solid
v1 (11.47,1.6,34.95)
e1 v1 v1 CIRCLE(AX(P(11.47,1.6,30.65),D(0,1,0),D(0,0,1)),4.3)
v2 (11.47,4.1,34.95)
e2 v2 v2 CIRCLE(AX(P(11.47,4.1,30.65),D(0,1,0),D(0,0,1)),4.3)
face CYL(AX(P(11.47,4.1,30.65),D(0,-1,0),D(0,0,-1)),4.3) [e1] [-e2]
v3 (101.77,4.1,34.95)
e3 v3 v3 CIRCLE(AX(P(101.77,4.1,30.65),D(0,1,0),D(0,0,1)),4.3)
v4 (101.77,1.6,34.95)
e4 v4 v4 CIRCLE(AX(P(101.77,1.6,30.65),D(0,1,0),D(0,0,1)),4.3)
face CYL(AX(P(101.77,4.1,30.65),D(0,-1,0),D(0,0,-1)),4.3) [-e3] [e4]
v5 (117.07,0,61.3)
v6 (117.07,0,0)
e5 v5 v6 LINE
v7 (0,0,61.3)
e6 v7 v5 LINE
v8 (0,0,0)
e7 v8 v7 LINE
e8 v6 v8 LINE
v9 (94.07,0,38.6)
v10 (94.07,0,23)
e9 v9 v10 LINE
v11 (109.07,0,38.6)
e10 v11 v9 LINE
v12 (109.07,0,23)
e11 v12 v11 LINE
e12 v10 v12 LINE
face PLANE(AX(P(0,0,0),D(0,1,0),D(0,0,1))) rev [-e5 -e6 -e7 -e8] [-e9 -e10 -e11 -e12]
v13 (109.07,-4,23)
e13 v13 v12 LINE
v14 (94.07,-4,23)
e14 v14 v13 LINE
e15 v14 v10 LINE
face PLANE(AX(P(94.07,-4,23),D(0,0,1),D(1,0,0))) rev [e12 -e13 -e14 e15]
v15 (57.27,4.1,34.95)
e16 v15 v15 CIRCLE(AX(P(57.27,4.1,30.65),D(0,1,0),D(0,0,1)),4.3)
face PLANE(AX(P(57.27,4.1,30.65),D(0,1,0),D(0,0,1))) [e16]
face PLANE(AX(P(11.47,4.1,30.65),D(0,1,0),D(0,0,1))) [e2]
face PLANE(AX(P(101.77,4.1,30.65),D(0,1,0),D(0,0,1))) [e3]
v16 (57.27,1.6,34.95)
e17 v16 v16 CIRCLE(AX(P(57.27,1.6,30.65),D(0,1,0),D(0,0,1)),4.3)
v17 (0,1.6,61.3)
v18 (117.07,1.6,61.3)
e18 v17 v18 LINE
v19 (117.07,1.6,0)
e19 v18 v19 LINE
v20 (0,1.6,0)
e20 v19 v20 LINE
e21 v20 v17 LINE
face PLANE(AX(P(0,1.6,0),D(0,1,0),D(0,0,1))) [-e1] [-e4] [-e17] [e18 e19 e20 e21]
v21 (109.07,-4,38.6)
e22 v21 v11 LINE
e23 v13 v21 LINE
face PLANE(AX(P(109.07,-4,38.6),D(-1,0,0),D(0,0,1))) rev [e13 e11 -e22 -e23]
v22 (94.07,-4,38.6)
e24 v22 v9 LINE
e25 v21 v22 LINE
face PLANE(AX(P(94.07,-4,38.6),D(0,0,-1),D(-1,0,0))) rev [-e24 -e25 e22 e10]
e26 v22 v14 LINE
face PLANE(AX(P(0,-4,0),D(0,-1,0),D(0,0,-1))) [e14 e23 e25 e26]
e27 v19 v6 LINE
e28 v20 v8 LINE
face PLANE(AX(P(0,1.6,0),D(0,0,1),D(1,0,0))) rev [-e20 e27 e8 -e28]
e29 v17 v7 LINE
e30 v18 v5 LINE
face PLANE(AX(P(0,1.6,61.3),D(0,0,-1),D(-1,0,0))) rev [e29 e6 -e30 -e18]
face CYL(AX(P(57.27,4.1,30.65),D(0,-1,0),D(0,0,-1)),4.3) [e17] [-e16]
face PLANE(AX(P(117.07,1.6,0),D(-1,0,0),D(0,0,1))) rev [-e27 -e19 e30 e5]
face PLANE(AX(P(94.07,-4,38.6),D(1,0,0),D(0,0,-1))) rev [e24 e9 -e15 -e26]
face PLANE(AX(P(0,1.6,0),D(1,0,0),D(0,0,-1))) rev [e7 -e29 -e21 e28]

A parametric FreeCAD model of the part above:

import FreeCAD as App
import Part
import Sketcher
from FreeCAD import Vector

doc = App.newDocument("Part")
body = doc.addObject("PartDesign::Body", "Body")

# Sketch on XZ plane
sketch1 = body.newObject("Sketcher::SketchObject", "Sketch")
sketch1.AttachmentSupport = (doc.getObject("XZ_Plane"), [""])
sketch1.MapMode = "FlatFace"
sketch1.addGeometry(Part.LineSegment(Vector(0, 0, 0), Vector(0, 61, 0)), False)
sketch1.addGeometry(Part.LineSegment(Vector(0, 61, 0), Vector(117, 61, 0)), False)
sketch1.addGeometry(Part.LineSegment(Vector(117, 61, 0), Vector(117, 0, 0)), False)
sketch1.addGeometry(Part.LineSegment(Vector(117, 0, 0), Vector(0, 0, 0)), False)
sketch1.addConstraint(Sketcher.Constraint("Coincident", 0, 2, 1, 1))
sketch1.addConstraint(Sketcher.Constraint("Coincident", 1, 2, 2, 1))
sketch1.addConstraint(Sketcher.Constraint("Coincident", 2, 2, 3, 1))
sketch1.addConstraint(Sketcher.Constraint("Coincident", 3, 2, 0, 1))
sketch1.addConstraint(Sketcher.Constraint("Vertical", 0))
sketch1.addConstraint(Sketcher.Constraint("Horizontal", 1))
sketch1.addConstraint(Sketcher.Constraint("Vertical", 2))
sketch1.addConstraint(Sketcher.Constraint("Horizontal", 3))
sketch1.addConstraint(Sketcher.Constraint("Coincident", 3, 2, -1, 1))
sketch1.addConstraint(Sketcher.Constraint("DistanceY", 0, 1, 0, 2, 61.3))
sketch1.addConstraint(Sketcher.Constraint("DistanceX", 1, 1, 1, 2, 117.07))
pad1 = body.newObject("PartDesign::Pad", "Pad")
pad1.Profile = sketch1
pad1.Length = 1.6
pad1.Reversed = True

# Sketch on XZ plane
sketch2 = body.newObject("Sketcher::SketchObject", "Sketch001")
sketch2.AttachmentSupport = (doc.getObject("XZ_Plane"), [""])
sketch2.MapMode = "FlatFace"
sketch2.addGeometry(Part.LineSegment(Vector(94, 39, 0), Vector(94, 23, 0)), False)
sketch2.addGeometry(Part.LineSegment(Vector(94, 23, 0), Vector(109, 23, 0)), False)
sketch2.addGeometry(Part.LineSegment(Vector(109, 23, 0), Vector(109, 39, 0)), False)
sketch2.addGeometry(Part.LineSegment(Vector(109, 39, 0), Vector(94, 39, 0)), False)
sketch2.addConstraint(Sketcher.Constraint("Coincident", 0, 2, 1, 1))
sketch2.addConstraint(Sketcher.Constraint("Coincident", 1, 2, 2, 1))
sketch2.addConstraint(Sketcher.Constraint("Coincident", 2, 2, 3, 1))
sketch2.addConstraint(Sketcher.Constraint("Coincident", 3, 2, 0, 1))
sketch2.addConstraint(Sketcher.Constraint("Vertical", 0))
sketch2.addConstraint(Sketcher.Constraint("Horizontal", 1))
sketch2.addConstraint(Sketcher.Constraint("Vertical", 2))
sketch2.addConstraint(Sketcher.Constraint("Horizontal", 3))
sketch2.addConstraint(Sketcher.Constraint("DistanceX", 1, 1, 1, 2, 15.0))
sketch2.addConstraint(Sketcher.Constraint("DistanceY", 0, 2, 0, 1, 15.6))
sketch2.addConstraint(Sketcher.Constraint("DistanceY", -1, 1, 0, 2, 23.0))
sketch2.addConstraint(Sketcher.Constraint("DistanceX", -1, 1, 0, 2, 94.07))
pad2 = body.newObject("PartDesign::Pad", "Pad001")
pad2.Profile = sketch2
pad2.Length = 4

# Sketch on XZ plane
sketch3 = body.newObject("Sketcher::SketchObject", "Sketch002")
sketch3.AttachmentSupport = (doc.getObject("XZ_Plane"), [""])
sketch3.MapMode = "FlatFace"
sketch3.AttachmentOffset = App.Placement(Vector(0, 0, -1.6), App.Rotation())
sketch3.addGeometry(Part.Circle(Vector(101.8, 30.6, 0), Vector(0, 0, 1), 4.3), False)
sketch3.addGeometry(Part.Circle(Vector(57.3, 30.6, 0), Vector(0, 0, 1), 4.3), False)
sketch3.addGeometry(Part.Circle(Vector(11.5, 30.6, 0), Vector(0, 0, 1), 4.3), False)
sketch3.addConstraint(Sketcher.Constraint("Equal", 0, 1))
sketch3.addConstraint(Sketcher.Constraint("Equal", 1, 2))
sketch3.addConstraint(Sketcher.Constraint("Horizontal", 0, 3, 1, 3))
sketch3.addConstraint(Sketcher.Constraint("Horizontal", 1, 3, 2, 3))
sketch3.addConstraint(Sketcher.Constraint("Diameter", 0, 8.6))
sketch3.addConstraint(Sketcher.Constraint("DistanceX", 1, 3, 0, 3, 44.5))
sketch3.addConstraint(Sketcher.Constraint("DistanceX", 2, 3, 1, 3, 45.8))
sketch3.addConstraint(Sketcher.Constraint("DistanceX", -1, 1, 0, 3, 101.77))
sketch3.addConstraint(Sketcher.Constraint("DistanceY", -1, 1, 0, 3, 30.65))
pad3 = body.newObject("PartDesign::Pad", "Pad002")
pad3.Profile = sketch3
pad3.Length = 2.5
pad3.Reversed = True

doc.recompute()
